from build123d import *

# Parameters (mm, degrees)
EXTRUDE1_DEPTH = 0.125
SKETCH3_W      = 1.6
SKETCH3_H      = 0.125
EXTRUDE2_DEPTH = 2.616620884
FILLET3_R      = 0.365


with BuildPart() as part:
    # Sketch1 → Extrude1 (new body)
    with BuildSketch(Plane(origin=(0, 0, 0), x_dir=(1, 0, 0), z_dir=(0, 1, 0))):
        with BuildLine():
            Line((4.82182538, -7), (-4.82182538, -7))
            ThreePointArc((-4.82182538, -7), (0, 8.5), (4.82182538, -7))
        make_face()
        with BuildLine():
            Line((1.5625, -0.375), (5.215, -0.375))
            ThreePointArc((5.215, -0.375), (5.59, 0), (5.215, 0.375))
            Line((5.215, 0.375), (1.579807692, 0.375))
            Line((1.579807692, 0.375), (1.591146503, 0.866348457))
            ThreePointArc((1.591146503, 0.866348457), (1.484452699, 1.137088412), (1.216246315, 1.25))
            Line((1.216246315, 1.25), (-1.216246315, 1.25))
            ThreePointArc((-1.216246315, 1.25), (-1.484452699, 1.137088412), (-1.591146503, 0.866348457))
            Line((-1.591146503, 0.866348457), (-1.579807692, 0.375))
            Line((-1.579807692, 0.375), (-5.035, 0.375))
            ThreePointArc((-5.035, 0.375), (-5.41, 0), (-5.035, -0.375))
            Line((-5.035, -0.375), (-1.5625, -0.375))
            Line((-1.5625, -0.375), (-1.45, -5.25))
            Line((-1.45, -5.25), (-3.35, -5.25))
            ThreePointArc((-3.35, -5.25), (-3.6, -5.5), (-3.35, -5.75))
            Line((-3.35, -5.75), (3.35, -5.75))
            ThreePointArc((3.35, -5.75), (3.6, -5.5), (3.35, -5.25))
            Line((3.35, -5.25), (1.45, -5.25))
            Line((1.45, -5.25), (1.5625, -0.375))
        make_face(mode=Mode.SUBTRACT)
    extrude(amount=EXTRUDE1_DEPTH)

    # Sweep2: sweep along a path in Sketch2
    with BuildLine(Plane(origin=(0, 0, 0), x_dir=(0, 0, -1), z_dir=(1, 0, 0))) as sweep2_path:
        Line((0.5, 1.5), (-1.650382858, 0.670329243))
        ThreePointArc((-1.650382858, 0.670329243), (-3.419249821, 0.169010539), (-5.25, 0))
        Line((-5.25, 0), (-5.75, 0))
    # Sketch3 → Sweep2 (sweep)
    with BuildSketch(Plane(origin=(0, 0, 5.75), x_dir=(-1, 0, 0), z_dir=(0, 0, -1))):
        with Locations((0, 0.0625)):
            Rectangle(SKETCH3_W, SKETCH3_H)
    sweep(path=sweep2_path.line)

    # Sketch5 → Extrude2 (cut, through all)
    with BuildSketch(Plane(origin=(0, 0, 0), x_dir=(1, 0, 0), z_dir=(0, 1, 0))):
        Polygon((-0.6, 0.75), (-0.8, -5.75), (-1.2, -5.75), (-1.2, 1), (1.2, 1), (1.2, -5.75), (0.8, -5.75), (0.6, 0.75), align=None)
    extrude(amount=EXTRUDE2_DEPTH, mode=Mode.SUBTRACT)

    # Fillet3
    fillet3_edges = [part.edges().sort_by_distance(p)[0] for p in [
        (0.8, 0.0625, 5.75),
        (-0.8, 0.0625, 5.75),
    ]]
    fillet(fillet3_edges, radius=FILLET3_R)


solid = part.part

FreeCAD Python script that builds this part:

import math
import FreeCAD as App
import Part
import Sketcher
from FreeCAD import Vector


def edges_at(feature, points):
    """Names of the edges that pass closest to the given points."""
    edges = feature.Shape.Edges
    near = lambda p: min(range(len(edges)), key=lambda i: edges[i].distToShape(Part.Vertex(*p))[0])
    return sorted({f"Edge{near(p) + 1}" for p in points})

doc = App.newDocument("Part")
body = doc.addObject("PartDesign::Body", "Body")

# Sketch on XZ plane
sketch1 = doc.addObject("Sketcher::SketchObject", "Sketch")
body.addObject(sketch1)
sketch1.AttachmentSupport = (doc.XZ_Plane, [""])
sketch1.MapMode = "FlatFace"
sketch1.addGeometry([
    Part.LineSegment(Vector(-4.821825, 7, 0), Vector(4.821825, 7, 0)),  # 0
    Part.ArcOfCircle(Part.Circle(Vector(0, 0, 0), Vector(0, 0, 1), 8.5), math.radians(124.560322), math.radians(415.439678)),  # 1
    Part.LineSegment(Vector(1.5625, 0.375, 0), Vector(1.45, 5.25, 0)),  # 2
    Part.LineSegment(Vector(1.45, 5.25, 0), Vector(3.35, 5.25, 0)),  # 3
    Part.ArcOfCircle(Part.Circle(Vector(3.35, 5.5, 0), Vector(0, 0, 1), 0.25), math.radians(-90), math.radians(90)),  # 4
    Part.LineSegment(Vector(3.35, 5.75, 0), Vector(-3.35, 5.75, 0)),  # 5
    Part.ArcOfCircle(Part.Circle(Vector(-3.35, 5.5, 0), Vector(0, 0, 1), 0.25), math.radians(90), math.radians(270)),  # 6
    Part.LineSegment(Vector(-3.35, 5.25, 0), Vector(-1.45, 5.25, 0)),  # 7
    Part.LineSegment(Vector(-1.45, 5.25, 0), Vector(-1.5625, 0.375, 0)),  # 8
    Part.LineSegment(Vector(-1.5625, 0.375, 0), Vector(-5.035, 0.375, 0)),  # 9
    Part.ArcOfCircle(Part.Circle(Vector(-5.035, 0, 0), Vector(0, 0, 1), 0.375), math.radians(90), math.radians(270)),  # 10
    Part.LineSegment(Vector(-5.035, -0.375, 0), Vector(-1.579808, -0.375, 0)),  # 11
    Part.LineSegment(Vector(-1.579808, -0.375, 0), Vector(-1.591147, -0.866348, 0)),  # 12
    Part.ArcOfCircle(Part.Circle(Vector(-1.216246, -0.875, 0), Vector(0, 0, 1), 0.375), math.radians(178.678024), math.radians(270)),  # 13
    Part.LineSegment(Vector(-1.216246, -1.25, 0), Vector(1.216246, -1.25, 0)),  # 14
    Part.ArcOfCircle(Part.Circle(Vector(1.216246, -0.875, 0), Vector(0, 0, 1), 0.375), math.radians(-90), math.radians(1.321976)),  # 15
    Part.LineSegment(Vector(1.591147, -0.866348, 0), Vector(1.579808, -0.375, 0)),  # 16
    Part.LineSegment(Vector(1.579808, -0.375, 0), Vector(5.215, -0.375, 0)),  # 17
    Part.ArcOfCircle(Part.Circle(Vector(5.215, 0, 0), Vector(0, 0, 1), 0.375), math.radians(-90), math.radians(90)),  # 18
    Part.LineSegment(Vector(5.215, 0.375, 0), Vector(1.5625, 0.375, 0)),  # 19
], False)
sketch1.addConstraint([
    Sketcher.Constraint("Coincident", 0, 1, 1, 1),
    Sketcher.Constraint("Coincident", 1, 2, 0, 2),
    Sketcher.Constraint("Coincident", 2, 2, 3, 1),
    Sketcher.Constraint("Tangent", 3, 2, 4, 1),
    Sketcher.Constraint("Tangent", 4, 2, 5, 1),
    Sketcher.Constraint("Tangent", 5, 2, 6, 1),
    Sketcher.Constraint("Tangent", 6, 2, 7, 1),
    Sketcher.Constraint("Coincident", 7, 2, 8, 1),
    Sketcher.Constraint("Coincident", 8, 2, 9, 1),
    Sketcher.Constraint("Tangent", 9, 2, 10, 1),
    Sketcher.Constraint("Tangent", 10, 2, 11, 1),
    Sketcher.Constraint("Coincident", 11, 2, 12, 1),
    Sketcher.Constraint("Tangent", 12, 2, 13, 1),
    Sketcher.Constraint("Tangent", 13, 2, 14, 1),
    Sketcher.Constraint("Tangent", 14, 2, 15, 1),
    Sketcher.Constraint("Tangent", 15, 2, 16, 1),
    Sketcher.Constraint("Coincident", 16, 2, 17, 1),
    Sketcher.Constraint("Tangent", 17, 2, 18, 1),
    Sketcher.Constraint("Tangent", 18, 2, 19, 1),
    Sketcher.Constraint("Coincident", 19, 2, 2, 1),
    Sketcher.Constraint("Horizontal", 0),
    Sketcher.Constraint("Horizontal", 3),
    Sketcher.Constraint("Horizontal", 5),
    Sketcher.Constraint("Horizontal", 7),
    Sketcher.Constraint("Horizontal", 9),
    Sketcher.Constraint("Horizontal", 11),
    Sketcher.Constraint("Horizontal", 14),
    Sketcher.Constraint("Horizontal", 17),
    Sketcher.Constraint("Horizontal", 19),
    Sketcher.Constraint("Coincident", 1, 3, -1, 1),
    Sketcher.Constraint("Equal", 4, 6),
    Sketcher.Constraint("Equal", 10, 13),
    Sketcher.Constraint("Equal", 13, 15),
    Sketcher.Constraint("Equal", 15, 18),
    Sketcher.Constraint("Symmetric", 12, 2, 15, 2, -2),
    Sketcher.Constraint("Symmetric", 8, 2, 19, 2, -2),
    Sketcher.Constraint("PointOnObject", 10, 3, -1),
    Sketcher.Constraint("Parallel", 8, 12),
    Sketcher.Constraint("Parallel", 2, 16),
    Sketcher.Constraint("Equal", 3, 7),
    Sketcher.Constraint("Radius", 1, 8.5),
    Sketcher.Constraint("Radius", 4, 0.25),
    Sketcher.Constraint("DistanceX", 3, 1, 3, 2, 1.9),
    Sketcher.Constraint("DistanceX", 5, 2, 5, 1, 6.7),
    Sketcher.Constraint("DistanceY", -1, 1, 0, 1, 7.0),
    Sketcher.Constraint("Radius", 10, 0.375),
    Sketcher.Constraint("DistanceY", -1, 1, 4, 3, 5.5),
    Sketcher.Constraint("DistanceY", 13, 3, 10, 2, 0.5),
    Sketcher.Constraint("DistanceX", 9, 2, 9, 1, 3.4725),
    Sketcher.Constraint("DistanceX", 19, 2, 19, 1, 3.6525),
    Sketcher.Constraint("DistanceX", 10, 3, -1, 1, 5.035),
    Sketcher.Constraint("DistanceX", 11, 1, 11, 2, 3.455192),
])
pad1 = doc.addObject("PartDesign::Pad", "Pad")
body.addObject(pad1)
pad1.Profile = sketch1
pad1.Length = 0.125
pad1.Reversed = True

# Sketch on XY plane
sketch2 = doc.addObject("Sketcher::SketchObject", "Sketch001")
body.addObject(sketch2)
sketch2.AttachmentSupport = (doc.XY_Plane, [""])
sketch2.MapMode = "FlatFace"
sketch2.AttachmentOffset = App.Placement(Vector(0, 0, 5.75), App.Rotation())
sketch2.addGeometry([
    Part.LineSegment(Vector(0.8, 0.125, 0), Vector(0.8, 0, 0)),
    Part.LineSegment(Vector(0.8, 0, 0), Vector(-0.8, 0, 0)),
    Part.LineSegment(Vector(-0.8, 0, 0), Vector(-0.8, 0.125, 0)),
    Part.LineSegment(Vector(-0.8, 0.125, 0), Vector(0.8, 0.125, 0)),
], False)
sketch2.addConstraint([
    Sketcher.Constraint("Coincident", 0, 2, 1, 1),
    Sketcher.Constraint("Coincident", 1, 2, 2, 1),
    Sketcher.Constraint("Coincident", 2, 2, 3, 1),
    Sketcher.Constraint("Coincident", 3, 2, 0, 1),
    Sketcher.Constraint("Vertical", 0),
    Sketcher.Constraint("Horizontal", 1),
    Sketcher.Constraint("Vertical", 2),
    Sketcher.Constraint("Horizontal", 3),
    Sketcher.Constraint("Symmetric", 0, 2, 1, 2, -1, 1),
    Sketcher.Constraint("DistanceX", 1, 2, 1, 1, 1.6),
    Sketcher.Constraint("DistanceY", 0, 2, 0, 1, 0.125),
])

# Sketch on YZ plane
sketch3 = doc.addObject("Sketcher::SketchObject", "Sketch002")
body.addObject(sketch3)
sketch3.AttachmentSupport = (doc.YZ_Plane, [""])
sketch3.MapMode = "FlatFace"
sketch3.addGeometry([
    Part.LineSegment(Vector(1.5, -0.5, 0), Vector(0.670329, 1.650383, 0)),
    Part.ArcOfCircle(Part.Circle(Vector(10, 5.25, 0), Vector(0, 0, 1), 10), math.radians(180), math.radians(201.097845)),
    Part.LineSegment(Vector(0, 5.25, 0), Vector(0, 5.75, 0)),
], False)
sketch3.addConstraint([
    Sketcher.Constraint("Tangent", 0, 2, 1, 2),
    Sketcher.Constraint("Tangent", 1, 1, 2, 1),
    Sketcher.Constraint("Vertical", 2),
    Sketcher.Constraint("PointOnObject", 1, 1, -2),
    Sketcher.Constraint("Radius", 1, 10.0),
    Sketcher.Constraint("DistanceY", 2, 1, 2, 2, 0.5),
    Sketcher.Constraint("DistanceX", -1, 1, 0, 1, 1.5),
    Sketcher.Constraint("DistanceY", 0, 1, -1, 1, 0.5),
    Sketcher.Constraint("DistanceY", -1, 1, 1, 3, 5.25),
])
doc.recompute()

additivepipe = doc.addObject("PartDesign::AdditivePipe", "AdditivePipe")
body.addObject(additivepipe)
additivepipe.Profile = sketch2
additivepipe.Spine = (sketch3, ["Edge1", "Edge2", "Edge3"])

# Sketch on XZ plane
sketch4 = doc.addObject("Sketcher::SketchObject", "Sketch003")
body.addObject(sketch4)
sketch4.AttachmentSupport = (doc.XZ_Plane, [""])
sketch4.MapMode = "FlatFace"
sketch4.addGeometry([
    Part.LineSegment(Vector(-0.8, 5.75, 0), Vector(-0.6, -0.75, 0)),  # 0
    Part.LineSegment(Vector(-0.6, -0.75, 0), Vector(0.6, -0.75, 0)),  # 1
    Part.LineSegment(Vector(0.6, -0.75, 0), Vector(0.8, 5.75, 0)),  # 2
    Part.LineSegment(Vector(0.8, 5.75, 0), Vector(1.2, 5.75, 0)),  # 3
    Part.LineSegment(Vector(1.2, 5.75, 0), Vector(1.2, -1, 0)),  # 4
    Part.LineSegment(Vector(1.2, -1, 0), Vector(-1.2, -1, 0)),  # 5
    Part.LineSegment(Vector(-1.2, -1, 0), Vector(-1.2, 5.75, 0)),  # 6
    Part.LineSegment(Vector(-1.2, 5.75, 0), Vector(-0.8, 5.75, 0)),  # 7
], False)
sketch4.addConstraint([
    Sketcher.Constraint("Coincident", 0, 2, 1, 1),
    Sketcher.Constraint("Coincident", 1, 2, 2, 1),
    Sketcher.Constraint("Coincident", 2, 2, 3, 1),
    Sketcher.Constraint("Coincident", 3, 2, 4, 1),
    Sketcher.Constraint("Coincident", 4, 2, 5, 1),
    Sketcher.Constraint("Coincident", 5, 2, 6, 1),
    Sketcher.Constraint("Coincident", 6, 2, 7, 1),
    Sketcher.Constraint("Coincident", 7, 2, 0, 1),
    Sketcher.Constraint("Horizontal", 1),
    Sketcher.Constraint("Horizontal", 3),
    Sketcher.Constraint("Vertical", 4),
    Sketcher.Constraint("Horizontal", 5),
    Sketcher.Constraint("Vertical", 6),
    Sketcher.Constraint("Horizontal", 7),
    Sketcher.Constraint("Symmetric", 3, 2, 6, 2, -2),
    Sketcher.Constraint("Equal", 3, 7),
    Sketcher.Constraint("Equal", 0, 2),
    Sketcher.Constraint("DistanceX", 1, 1, 1, 2, 1.2),
    Sketcher.Constraint("DistanceX", 3, 1, 3, 2, 0.4),
    Sketcher.Constraint("DistanceX", 5, 2, 5, 1, 2.4),
    Sketcher.Constraint("DistanceY", 4, 2, -1, 1, 1.0),
    Sketcher.Constraint("DistanceY", 4, 2, 4, 1, 6.75),
    Sketcher.Constraint("DistanceY", 1, 2, 2, 2, 6.5),
])
pocket1 = doc.addObject("PartDesign::Pocket", "Pocket")
body.addObject(pocket1)
pocket1.Profile = sketch4
pocket1.Type = "ThroughAll"
doc.recompute()

fillet = doc.addObject("PartDesign::Fillet", "Fillet")
body.addObject(fillet)
fillet.Base = (pocket1, edges_at(pocket1, [(0.8, 0.062, 5.75), (-0.8, 0.062, 5.75)]))
fillet.Radius = 0.365

doc.recompute()
